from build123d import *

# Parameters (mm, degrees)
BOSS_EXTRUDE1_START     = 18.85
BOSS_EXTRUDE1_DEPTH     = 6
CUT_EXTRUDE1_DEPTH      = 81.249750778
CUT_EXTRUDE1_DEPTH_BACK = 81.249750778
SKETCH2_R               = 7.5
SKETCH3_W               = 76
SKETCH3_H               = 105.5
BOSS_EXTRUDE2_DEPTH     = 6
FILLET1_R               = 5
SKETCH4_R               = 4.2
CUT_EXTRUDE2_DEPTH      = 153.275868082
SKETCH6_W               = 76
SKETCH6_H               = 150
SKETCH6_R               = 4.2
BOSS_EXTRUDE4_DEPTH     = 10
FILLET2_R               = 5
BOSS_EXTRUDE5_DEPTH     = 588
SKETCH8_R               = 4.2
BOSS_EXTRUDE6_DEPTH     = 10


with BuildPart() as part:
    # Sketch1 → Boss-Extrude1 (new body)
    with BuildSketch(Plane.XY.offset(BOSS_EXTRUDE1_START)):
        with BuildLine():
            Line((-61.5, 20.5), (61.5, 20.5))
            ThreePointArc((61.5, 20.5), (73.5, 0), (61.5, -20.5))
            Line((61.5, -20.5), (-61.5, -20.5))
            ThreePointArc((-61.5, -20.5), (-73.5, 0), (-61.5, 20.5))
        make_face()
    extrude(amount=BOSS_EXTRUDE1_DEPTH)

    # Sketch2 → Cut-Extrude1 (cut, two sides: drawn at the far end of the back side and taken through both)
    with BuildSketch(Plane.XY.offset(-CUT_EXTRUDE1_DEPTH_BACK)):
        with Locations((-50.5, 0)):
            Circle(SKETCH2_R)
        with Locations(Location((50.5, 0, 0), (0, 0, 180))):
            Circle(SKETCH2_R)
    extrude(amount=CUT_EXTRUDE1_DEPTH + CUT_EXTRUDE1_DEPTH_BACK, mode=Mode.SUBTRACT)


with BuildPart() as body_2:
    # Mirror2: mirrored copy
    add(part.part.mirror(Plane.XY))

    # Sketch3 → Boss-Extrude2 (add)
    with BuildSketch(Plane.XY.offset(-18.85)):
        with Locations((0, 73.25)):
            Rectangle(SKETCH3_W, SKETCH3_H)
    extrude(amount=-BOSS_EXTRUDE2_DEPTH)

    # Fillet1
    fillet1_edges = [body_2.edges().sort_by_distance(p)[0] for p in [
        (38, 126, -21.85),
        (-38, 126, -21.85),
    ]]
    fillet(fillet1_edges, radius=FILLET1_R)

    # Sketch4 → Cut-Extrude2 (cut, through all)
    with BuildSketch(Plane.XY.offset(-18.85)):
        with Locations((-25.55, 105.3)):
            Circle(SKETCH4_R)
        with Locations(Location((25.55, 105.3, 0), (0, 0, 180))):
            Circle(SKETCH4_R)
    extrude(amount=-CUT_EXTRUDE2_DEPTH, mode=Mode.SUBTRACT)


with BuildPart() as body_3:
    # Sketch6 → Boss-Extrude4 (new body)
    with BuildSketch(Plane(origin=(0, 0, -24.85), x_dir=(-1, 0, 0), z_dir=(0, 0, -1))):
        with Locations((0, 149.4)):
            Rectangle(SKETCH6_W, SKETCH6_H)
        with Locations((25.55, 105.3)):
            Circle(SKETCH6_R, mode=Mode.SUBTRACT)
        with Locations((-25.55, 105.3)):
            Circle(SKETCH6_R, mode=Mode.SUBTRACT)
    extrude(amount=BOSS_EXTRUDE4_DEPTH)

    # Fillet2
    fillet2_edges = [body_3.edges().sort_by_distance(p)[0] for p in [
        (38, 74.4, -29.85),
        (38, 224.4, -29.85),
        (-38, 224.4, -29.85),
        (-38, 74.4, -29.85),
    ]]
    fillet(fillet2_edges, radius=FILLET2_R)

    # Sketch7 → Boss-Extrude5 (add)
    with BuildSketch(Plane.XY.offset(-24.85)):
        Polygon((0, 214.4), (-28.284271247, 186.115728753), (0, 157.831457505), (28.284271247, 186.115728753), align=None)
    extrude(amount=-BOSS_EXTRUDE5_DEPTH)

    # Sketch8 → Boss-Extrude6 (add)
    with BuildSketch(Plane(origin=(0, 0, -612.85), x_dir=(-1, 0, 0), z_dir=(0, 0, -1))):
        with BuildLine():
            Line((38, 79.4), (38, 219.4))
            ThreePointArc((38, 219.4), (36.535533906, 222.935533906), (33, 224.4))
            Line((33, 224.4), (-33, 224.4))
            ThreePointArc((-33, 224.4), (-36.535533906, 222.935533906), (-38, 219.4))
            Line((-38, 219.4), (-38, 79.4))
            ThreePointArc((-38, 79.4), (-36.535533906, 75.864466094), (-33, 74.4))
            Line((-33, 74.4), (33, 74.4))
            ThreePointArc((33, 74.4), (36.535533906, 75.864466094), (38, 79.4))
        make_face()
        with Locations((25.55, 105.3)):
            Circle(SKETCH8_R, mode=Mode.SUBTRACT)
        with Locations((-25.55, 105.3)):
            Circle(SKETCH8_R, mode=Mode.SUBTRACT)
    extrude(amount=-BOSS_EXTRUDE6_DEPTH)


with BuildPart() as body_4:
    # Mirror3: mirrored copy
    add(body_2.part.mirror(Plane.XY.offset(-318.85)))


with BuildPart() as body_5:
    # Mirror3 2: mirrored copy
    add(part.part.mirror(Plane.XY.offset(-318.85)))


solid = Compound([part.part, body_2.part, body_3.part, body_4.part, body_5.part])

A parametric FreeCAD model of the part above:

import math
import FreeCAD as App
import Part
import Sketcher
from FreeCAD import Vector
Q = App.Units.Quantity


def edges_at(feature, points):
    """Names of the edges that pass closest to the given points."""
    edges = feature.Shape.Edges
    near = lambda p: min(range(len(edges)), key=lambda i: edges[i].distToShape(Part.Vertex(*p))[0])
    return sorted({f"Edge{near(p) + 1}" for p in points})

doc = App.newDocument("Part")
body = doc.addObject("PartDesign::Body", "Body")

sketch1 = body.newObject("Sketcher::SketchObject", "Sketch")
sketch1.AttachmentSupport = (doc.getObject("XY_Plane"), [""])
sketch1.MapMode = "FlatFace"
sketch1.AttachmentOffset = App.Placement(Vector(0, 0, 18.85), App.Rotation())
sketch1.addGeometry(Part.LineSegment(Vector(62, 20, 0), Vector(-62, 20, 0)), False)
sketch1.addGeometry(Part.ArcOfCircle(Part.Circle(Vector(-50, 0, 0), Vector(0, 0, 1), 24), math.radians(119), math.radians(241)), False)
sketch1.addGeometry(Part.LineSegment(Vector(-62, -20, 0), Vector(62, -20, 0)), False)
sketch1.addGeometry(Part.ArcOfCircle(Part.Circle(Vector(50, 0, 0), Vector(0, 0, 1), 24), math.radians(-61), math.radians(61)), False)
sketch1.addConstraint(Sketcher.Constraint("Coincident", 0, 2, 1, 1))
sketch1.addConstraint(Sketcher.Constraint("Coincident", 1, 2, 2, 1))
sketch1.addConstraint(Sketcher.Constraint("Coincident", 2, 2, 3, 1))
sketch1.addConstraint(Sketcher.Constraint("Coincident", 3, 2, 0, 1))
sketch1.addConstraint(Sketcher.Constraint("Horizontal", 0))
sketch1.addConstraint(Sketcher.Constraint("Horizontal", 2))
sketch1.addConstraint(Sketcher.Constraint("Equal", 1, 3))
sketch1.addConstraint(Sketcher.Constraint("Symmetric", 1, 3, 3, 3, -1, 1))
sketch1.addConstraint(Sketcher.Constraint("Symmetric", 0, 2, 1, 2, -1))
sketch1.addConstraint(Sketcher.Constraint("DistanceX", 0, 2, 0, 1, Q("123 mm")))
sketch1.addConstraint(Sketcher.Constraint("DistanceY", 1, 2, 0, 2, Q("41 mm")))
sketch1.addConstraint(Sketcher.Constraint("Radius", 1, Q("23.510417 mm")))
pad1 = body.newObject("PartDesign::Pad", "Pad")
pad1.Profile = sketch1
pad1.Length = 6

sketch2 = body.newObject("Sketcher::SketchObject", "Sketch001")
sketch2.AttachmentSupport = (doc.getObject("XY_Plane"), [""])
sketch2.MapMode = "FlatFace"
sketch2.addGeometry(Part.Circle(Vector(-50, 0, 0), Vector(0, 0, 1), 8), False)
sketch2.addGeometry(Part.Circle(Vector(50, 0, 0), Vector(0, 0, 1), 8), False)
sketch2.addConstraint(Sketcher.Constraint("Equal", 0, 1))
sketch2.addConstraint(Sketcher.Constraint("Symmetric", 0, 3, 1, 3, -1, 1))
sketch2.addConstraint(Sketcher.Constraint("PointOnObject", 0, 3, -1))
sketch2.addConstraint(Sketcher.Constraint("Diameter", 0, Q("15 mm")))
sketch2.addConstraint(Sketcher.Constraint("DistanceX", 0, 3, 1, 3, Q("101 mm")))
pocket1 = body.newObject("PartDesign::Pocket", "Pocket")
pocket1.Profile = sketch2
pocket1.Type = "ThroughAll"
pocket1.Midplane = True
body2 = doc.addObject("PartDesign::Body", "Body001")
doc.recompute()

mirroring = doc.addObject("Part::Mirroring", "Mirroring")
mirroring.Source = body
mirroring.Base = Vector(0, 0, 0)
mirroring.Normal = Vector(0, 0, 1)
body2.BaseFeature = mirroring
doc.recompute()

sketch3 = body2.newObject("Sketcher::SketchObject", "Sketch002")
sketch3.AttachmentSupport = (doc.getObject("XY_Plane001"), [""])
sketch3.MapMode = "FlatFace"
sketch3.AttachmentOffset = App.Placement(Vector(0, 0, -18.85), App.Rotation())
sketch3.addGeometry(Part.LineSegment(Vector(-38, 126, 0), Vector(-38, 20, 0)), False)
sketch3.addGeometry(Part.LineSegment(Vector(-38, 20, 0), Vector(38, 20, 0)), False)
sketch3.addGeometry(Part.LineSegment(Vector(38, 20, 0), Vector(38, 126, 0)), False)
sketch3.addGeometry(Part.LineSegment(Vector(38, 126, 0), Vector(-38, 126, 0)), False)
sketch3.addConstraint(Sketcher.Constraint("Coincident", 0, 2, 1, 1))
sketch3.addConstraint(Sketcher.Constraint("Coincident", 1, 2, 2, 1))
sketch3.addConstraint(Sketcher.Constraint("Coincident", 2, 2, 3, 1))
sketch3.addConstraint(Sketcher.Constraint("Coincident", 3, 2, 0, 1))
sketch3.addConstraint(Sketcher.Constraint("Vertical", 0))
sketch3.addConstraint(Sketcher.Constraint("Horizontal", 1))
sketch3.addConstraint(Sketcher.Constraint("Vertical", 2))
sketch3.addConstraint(Sketcher.Constraint("Horizontal", 3))
sketch3.addConstraint(Sketcher.Constraint("DistanceX", 1, 1, 1, 2, Q("76 mm")))
sketch3.addConstraint(Sketcher.Constraint("DistanceY", 0, 2, 0, 1, Q("105.5 mm")))
sketch3.addConstraint(Sketcher.Constraint("DistanceX", 0, 2, -1, 1, Q("38 mm")))
sketch3.addConstraint(Sketcher.Constraint("DistanceY", -1, 1, 2, 2, Q("126 mm")))
pad2 = body2.newObject("PartDesign::Pad", "Pad001")
pad2.Profile = sketch3
pad2.Length = 6
pad2.Reversed = True
doc.recompute()

fillet = body2.newObject("PartDesign::Fillet", "Fillet")
fillet.Base = (pad2, edges_at(pad2, [(38, 126, -21.85), (-38, 126, -21.85)]))
fillet.Radius = 5

sketch4 = body2.newObject("Sketcher::SketchObject", "Sketch003")
sketch4.AttachmentSupport = (doc.getObject("XY_Plane001"), [""])
sketch4.MapMode = "FlatFace"
sketch4.AttachmentOffset = App.Placement(Vector(0, 0, -18.85), App.Rotation())
sketch4.addGeometry(Part.Circle(Vector(-25.6, 105.3, 0), Vector(0, 0, 1), 4.2), False)
sketch4.addGeometry(Part.Circle(Vector(25.6, 105.3, 0), Vector(0, 0, 1), 4.2), False)
sketch4.addConstraint(Sketcher.Constraint("Equal", 0, 1))
sketch4.addConstraint(Sketcher.Constraint("Symmetric", 0, 3, 1, 3, -2))
sketch4.addConstraint(Sketcher.Constraint("Diameter", 0, Q("8.4 mm")))
sketch4.addConstraint(Sketcher.Constraint("DistanceY", -1, 1, 0, 3, Q("105.3 mm")))
sketch4.addConstraint(Sketcher.Constraint("DistanceX", 0, 3, 1, 3, Q("51.1 mm")))
pocket2 = body2.newObject("PartDesign::Pocket", "Pocket001")
pocket2.Profile = sketch4
pocket2.Type = "ThroughAll"
body3 = doc.addObject("PartDesign::Body", "Body002")

sketch5 = body3.newObject("Sketcher::SketchObject", "Sketch004")
sketch5.AttachmentSupport = (doc.getObject("XY_Plane002"), [""])
sketch5.MapMode = "FlatFace"
sketch5.AttachmentOffset = App.Placement(Vector(0, 0, -24.85), App.Rotation())
sketch5.addGeometry(Part.LineSegment(Vector(38, 224.4, 0), Vector(38, 74.4, 0)), False)
sketch5.addGeometry(Part.LineSegment(Vector(38, 74.4, 0), Vector(-38, 74.4, 0)), False)
sketch5.addGeometry(Part.LineSegment(Vector(-38, 74.4, 0), Vector(-38, 224.4, 0)), False)
sketch5.addGeometry(Part.LineSegment(Vector(-38, 224.4, 0), Vector(38, 224.4, 0)), False)
sketch5.addGeometry(Part.Circle(Vector(25.6, 105.3, 0), Vector(0, 0, 1), 4.2), False)
sketch5.addGeometry(Part.Circle(Vector(-25.6, 105.3, 0), Vector(0, 0, 1), 4.2), False)
sketch5.addConstraint(Sketcher.Constraint("Coincident", 0, 2, 1, 1))
sketch5.addConstraint(Sketcher.Constraint("Coincident", 1, 2, 2, 1))
sketch5.addConstraint(Sketcher.Constraint("Coincident", 2, 2, 3, 1))
sketch5.addConstraint(Sketcher.Constraint("Coincident", 3, 2, 0, 1))
sketch5.addConstraint(Sketcher.Constraint("Vertical", 0))
sketch5.addConstraint(Sketcher.Constraint("Horizontal", 1))
sketch5.addConstraint(Sketcher.Constraint("Vertical", 2))
sketch5.addConstraint(Sketcher.Constraint("Horizontal", 3))
sketch5.addConstraint(Sketcher.Constraint("Equal", 4, 5))
sketch5.addConstraint(Sketcher.Constraint("Symmetric", 4, 3, 5, 3, -2))
sketch5.addConstraint(Sketcher.Constraint("Diameter", 4, Q("8.4 mm")))
sketch5.addConstraint(Sketcher.Constraint("DistanceX", 1, 2, 1, 1, Q("76 mm")))
sketch5.addConstraint(Sketcher.Constraint("DistanceY", 0, 2, 0, 1, Q("150 mm")))
sketch5.addConstraint(Sketcher.Constraint("DistanceX", -1, 1, 0, 2, Q("38 mm")))
sketch5.addConstraint(Sketcher.Constraint("DistanceY", -1, 1, 4, 3, Q("105.3 mm")))
sketch5.addConstraint(Sketcher.Constraint("DistanceY", -1, 1, 0, 2, Q("74.4 mm")))
sketch5.addConstraint(Sketcher.Constraint("DistanceX", 5, 3, 4, 3, Q("51.1 mm")))
pad3 = body3.newObject("PartDesign::Pad", "Pad002")
pad3.Profile = sketch5
pad3.Length = 10
pad3.Reversed = True
doc.recompute()

fillet2 = body3.newObject("PartDesign::Fillet", "Fillet001")
fillet2.Base = (pad3, edges_at(pad3, [
    (38, 74.4, -29.85),
    (38, 224.4, -29.85),
    (-38, 224.4, -29.85),
    (-38, 74.4, -29.85),
]))
fillet2.Radius = 5

sketch6 = body3.newObject("Sketcher::SketchObject", "Sketch005")
sketch6.AttachmentSupport = (doc.getObject("XY_Plane002"), [""])
sketch6.MapMode = "FlatFace"
sketch6.AttachmentOffset = App.Placement(Vector(0, 0, -24.85), App.Rotation())
sketch6.addGeometry(Part.LineSegment(Vector(0, 214, 0), Vector(-28, 186, 0)), False)
sketch6.addGeometry(Part.LineSegment(Vector(-28, 186, 0), Vector(0, 158, 0)), False)
sketch6.addGeometry(Part.LineSegment(Vector(0, 158, 0), Vector(28, 186, 0)), False)
sketch6.addGeometry(Part.LineSegment(Vector(28, 186, 0), Vector(0, 214, 0)), False)
sketch6.addConstraint(Sketcher.Constraint("Coincident", 0, 2, 1, 1))
sketch6.addConstraint(Sketcher.Constraint("Coincident", 1, 2, 2, 1))
sketch6.addConstraint(Sketcher.Constraint("Coincident", 2, 2, 3, 1))
sketch6.addConstraint(Sketcher.Constraint("Coincident", 3, 2, 0, 1))
sketch6.addConstraint(Sketcher.Constraint("Symmetric", 0, 2, 2, 2, -2))
sketch6.addConstraint(Sketcher.Constraint("PointOnObject", 1, 2, -2))
sketch6.addConstraint(Sketcher.Constraint("PointOnObject", 3, 2, -2))
sketch6.addConstraint(Sketcher.Constraint("Perpendicular", 0, 1))
sketch6.addConstraint(Sketcher.Constraint("Perpendicular", 1, 2))
sketch6.addConstraint(Sketcher.Constraint("Distance", 0, Q("40 mm")))
sketch6.addConstraint(Sketcher.Constraint("DistanceY", -1, 1, 3, 2, Q("214.4 mm")))
pad4 = body3.newObject("PartDesign::Pad", "Pad003")
pad4.Profile = sketch6
pad4.Length = 588
pad4.Reversed = True

sketch7 = body3.newObject("Sketcher::SketchObject", "Sketch006")
sketch7.AttachmentSupport = (doc.getObject("XY_Plane002"), [""])
sketch7.MapMode = "FlatFace"
sketch7.AttachmentOffset = App.Placement(Vector(0, 0, -612.85), App.Rotation())
sketch7.addGeometry(Part.LineSegment(Vector(-38, 79.4, 0), Vector(-38, 219.4, 0)), False)
sketch7.addGeometry(Part.ArcOfCircle(Part.Circle(Vector(-33, 219.4, 0), Vector(0, 0, 1), 5), math.radians(90), math.radians(180)), False)
sketch7.addGeometry(Part.LineSegment(Vector(-33, 224.4, 0), Vector(33, 224.4, 0)), False)
sketch7.addGeometry(Part.ArcOfCircle(Part.Circle(Vector(33, 219.4, 0), Vector(0, 0, 1), 5), math.radians(0), math.radians(90)), False)
sketch7.addGeometry(Part.LineSegment(Vector(38, 219.4, 0), Vector(38, 79.4, 0)), False)
sketch7.addGeometry(Part.ArcOfCircle(Part.Circle(Vector(33, 79.4, 0), Vector(0, 0, 1), 5), math.radians(-90), math.radians(0)), False)
sketch7.addGeometry(Part.LineSegment(Vector(33, 74.4, 0), Vector(-33, 74.4, 0)), False)
sketch7.addGeometry(Part.ArcOfCircle(Part.Circle(Vector(-33, 79.4, 0), Vector(0, 0, 1), 5), math.radians(180), math.radians(270)), False)
sketch7.addGeometry(Part.Circle(Vector(25.6, 105.3, 0), Vector(0, 0, 1), 4.2), False)
sketch7.addGeometry(Part.Circle(Vector(-25.6, 105.3, 0), Vector(0, 0, 1), 4.2), False)
sketch7.addConstraint(Sketcher.Constraint("Tangent", 0, 2, 1, 2))
sketch7.addConstraint(Sketcher.Constraint("Tangent", 1, 1, 2, 1))
sketch7.addConstraint(Sketcher.Constraint("Tangent", 2, 2, 3, 2))
sketch7.addConstraint(Sketcher.Constraint("Tangent", 3, 1, 4, 1))
sketch7.addConstraint(Sketcher.Constraint("Tangent", 4, 2, 5, 2))
sketch7.addConstraint(Sketcher.Constraint("Tangent", 5, 1, 6, 1))
sketch7.addConstraint(Sketcher.Constraint("Tangent", 6, 2, 7, 2))
sketch7.addConstraint(Sketcher.Constraint("Tangent", 7, 1, 0, 1))
sketch7.addConstraint(Sketcher.Constraint("Vertical", 0))
sketch7.addConstraint(Sketcher.Constraint("Horizontal", 2))
sketch7.addConstraint(Sketcher.Constraint("Vertical", 4))
sketch7.addConstraint(Sketcher.Constraint("Horizontal", 6))
sketch7.addConstraint(Sketcher.Constraint("Equal", 1, 3))
sketch7.addConstraint(Sketcher.Constraint("Equal", 3, 5))
sketch7.addConstraint(Sketcher.Constraint("Equal", 5, 7))
sketch7.addConstraint(Sketcher.Constraint("Equal", 8, 9))
sketch7.addConstraint(Sketcher.Constraint("Symmetric", 8, 3, 9, 3, -2))
sketch7.addConstraint(Sketcher.Constraint("Radius", 1, Q("5 mm")))
sketch7.addConstraint(Sketcher.Constraint("Diameter", 8, Q("8.4 mm")))
sketch7.addConstraint(Sketcher.Constraint("DistanceX", 2, 1, 2, 2, Q("66 mm")))
sketch7.addConstraint(Sketcher.Constraint("DistanceY", 0, 1, 0, 2, Q("140 mm")))
sketch7.addConstraint(Sketcher.Constraint("DistanceX", 1, 3, -1, 1, Q("33 mm")))
sketch7.addConstraint(Sketcher.Constraint("DistanceY", -1, 1, 1, 3, Q("219.4 mm")))
sketch7.addConstraint(Sketcher.Constraint("DistanceY", -1, 1, 8, 3, Q("105.3 mm")))
sketch7.addConstraint(Sketcher.Constraint("DistanceX", 9, 3, 8, 3, Q("51.1 mm")))
pad5 = body3.newObject("PartDesign::Pad", "Pad004")
pad5.Profile = sketch7
pad5.Length = 10
body4 = doc.addObject("PartDesign::Body", "Body003")
doc.recompute()

mirroring2 = doc.addObject("Part::Mirroring", "Mirroring001")
mirroring2.Source = body2
mirroring2.Base = Vector(0, 0, -318.85)
mirroring2.Normal = Vector(0, 0, 1)
body4.BaseFeature = mirroring2
doc.recompute()
body5 = doc.addObject("PartDesign::Body", "Body004")
doc.recompute()

mirroring3 = doc.addObject("Part::Mirroring", "Mirroring002")
mirroring3.Source = body
mirroring3.Base = Vector(0, 0, -318.85)
mirroring3.Normal = Vector(0, 0, 1)
body5.BaseFeature = mirroring3
doc.recompute()
mirroring.Visibility = False
mirroring2.Visibility = False
mirroring3.Visibility = False

doc.recompute()
